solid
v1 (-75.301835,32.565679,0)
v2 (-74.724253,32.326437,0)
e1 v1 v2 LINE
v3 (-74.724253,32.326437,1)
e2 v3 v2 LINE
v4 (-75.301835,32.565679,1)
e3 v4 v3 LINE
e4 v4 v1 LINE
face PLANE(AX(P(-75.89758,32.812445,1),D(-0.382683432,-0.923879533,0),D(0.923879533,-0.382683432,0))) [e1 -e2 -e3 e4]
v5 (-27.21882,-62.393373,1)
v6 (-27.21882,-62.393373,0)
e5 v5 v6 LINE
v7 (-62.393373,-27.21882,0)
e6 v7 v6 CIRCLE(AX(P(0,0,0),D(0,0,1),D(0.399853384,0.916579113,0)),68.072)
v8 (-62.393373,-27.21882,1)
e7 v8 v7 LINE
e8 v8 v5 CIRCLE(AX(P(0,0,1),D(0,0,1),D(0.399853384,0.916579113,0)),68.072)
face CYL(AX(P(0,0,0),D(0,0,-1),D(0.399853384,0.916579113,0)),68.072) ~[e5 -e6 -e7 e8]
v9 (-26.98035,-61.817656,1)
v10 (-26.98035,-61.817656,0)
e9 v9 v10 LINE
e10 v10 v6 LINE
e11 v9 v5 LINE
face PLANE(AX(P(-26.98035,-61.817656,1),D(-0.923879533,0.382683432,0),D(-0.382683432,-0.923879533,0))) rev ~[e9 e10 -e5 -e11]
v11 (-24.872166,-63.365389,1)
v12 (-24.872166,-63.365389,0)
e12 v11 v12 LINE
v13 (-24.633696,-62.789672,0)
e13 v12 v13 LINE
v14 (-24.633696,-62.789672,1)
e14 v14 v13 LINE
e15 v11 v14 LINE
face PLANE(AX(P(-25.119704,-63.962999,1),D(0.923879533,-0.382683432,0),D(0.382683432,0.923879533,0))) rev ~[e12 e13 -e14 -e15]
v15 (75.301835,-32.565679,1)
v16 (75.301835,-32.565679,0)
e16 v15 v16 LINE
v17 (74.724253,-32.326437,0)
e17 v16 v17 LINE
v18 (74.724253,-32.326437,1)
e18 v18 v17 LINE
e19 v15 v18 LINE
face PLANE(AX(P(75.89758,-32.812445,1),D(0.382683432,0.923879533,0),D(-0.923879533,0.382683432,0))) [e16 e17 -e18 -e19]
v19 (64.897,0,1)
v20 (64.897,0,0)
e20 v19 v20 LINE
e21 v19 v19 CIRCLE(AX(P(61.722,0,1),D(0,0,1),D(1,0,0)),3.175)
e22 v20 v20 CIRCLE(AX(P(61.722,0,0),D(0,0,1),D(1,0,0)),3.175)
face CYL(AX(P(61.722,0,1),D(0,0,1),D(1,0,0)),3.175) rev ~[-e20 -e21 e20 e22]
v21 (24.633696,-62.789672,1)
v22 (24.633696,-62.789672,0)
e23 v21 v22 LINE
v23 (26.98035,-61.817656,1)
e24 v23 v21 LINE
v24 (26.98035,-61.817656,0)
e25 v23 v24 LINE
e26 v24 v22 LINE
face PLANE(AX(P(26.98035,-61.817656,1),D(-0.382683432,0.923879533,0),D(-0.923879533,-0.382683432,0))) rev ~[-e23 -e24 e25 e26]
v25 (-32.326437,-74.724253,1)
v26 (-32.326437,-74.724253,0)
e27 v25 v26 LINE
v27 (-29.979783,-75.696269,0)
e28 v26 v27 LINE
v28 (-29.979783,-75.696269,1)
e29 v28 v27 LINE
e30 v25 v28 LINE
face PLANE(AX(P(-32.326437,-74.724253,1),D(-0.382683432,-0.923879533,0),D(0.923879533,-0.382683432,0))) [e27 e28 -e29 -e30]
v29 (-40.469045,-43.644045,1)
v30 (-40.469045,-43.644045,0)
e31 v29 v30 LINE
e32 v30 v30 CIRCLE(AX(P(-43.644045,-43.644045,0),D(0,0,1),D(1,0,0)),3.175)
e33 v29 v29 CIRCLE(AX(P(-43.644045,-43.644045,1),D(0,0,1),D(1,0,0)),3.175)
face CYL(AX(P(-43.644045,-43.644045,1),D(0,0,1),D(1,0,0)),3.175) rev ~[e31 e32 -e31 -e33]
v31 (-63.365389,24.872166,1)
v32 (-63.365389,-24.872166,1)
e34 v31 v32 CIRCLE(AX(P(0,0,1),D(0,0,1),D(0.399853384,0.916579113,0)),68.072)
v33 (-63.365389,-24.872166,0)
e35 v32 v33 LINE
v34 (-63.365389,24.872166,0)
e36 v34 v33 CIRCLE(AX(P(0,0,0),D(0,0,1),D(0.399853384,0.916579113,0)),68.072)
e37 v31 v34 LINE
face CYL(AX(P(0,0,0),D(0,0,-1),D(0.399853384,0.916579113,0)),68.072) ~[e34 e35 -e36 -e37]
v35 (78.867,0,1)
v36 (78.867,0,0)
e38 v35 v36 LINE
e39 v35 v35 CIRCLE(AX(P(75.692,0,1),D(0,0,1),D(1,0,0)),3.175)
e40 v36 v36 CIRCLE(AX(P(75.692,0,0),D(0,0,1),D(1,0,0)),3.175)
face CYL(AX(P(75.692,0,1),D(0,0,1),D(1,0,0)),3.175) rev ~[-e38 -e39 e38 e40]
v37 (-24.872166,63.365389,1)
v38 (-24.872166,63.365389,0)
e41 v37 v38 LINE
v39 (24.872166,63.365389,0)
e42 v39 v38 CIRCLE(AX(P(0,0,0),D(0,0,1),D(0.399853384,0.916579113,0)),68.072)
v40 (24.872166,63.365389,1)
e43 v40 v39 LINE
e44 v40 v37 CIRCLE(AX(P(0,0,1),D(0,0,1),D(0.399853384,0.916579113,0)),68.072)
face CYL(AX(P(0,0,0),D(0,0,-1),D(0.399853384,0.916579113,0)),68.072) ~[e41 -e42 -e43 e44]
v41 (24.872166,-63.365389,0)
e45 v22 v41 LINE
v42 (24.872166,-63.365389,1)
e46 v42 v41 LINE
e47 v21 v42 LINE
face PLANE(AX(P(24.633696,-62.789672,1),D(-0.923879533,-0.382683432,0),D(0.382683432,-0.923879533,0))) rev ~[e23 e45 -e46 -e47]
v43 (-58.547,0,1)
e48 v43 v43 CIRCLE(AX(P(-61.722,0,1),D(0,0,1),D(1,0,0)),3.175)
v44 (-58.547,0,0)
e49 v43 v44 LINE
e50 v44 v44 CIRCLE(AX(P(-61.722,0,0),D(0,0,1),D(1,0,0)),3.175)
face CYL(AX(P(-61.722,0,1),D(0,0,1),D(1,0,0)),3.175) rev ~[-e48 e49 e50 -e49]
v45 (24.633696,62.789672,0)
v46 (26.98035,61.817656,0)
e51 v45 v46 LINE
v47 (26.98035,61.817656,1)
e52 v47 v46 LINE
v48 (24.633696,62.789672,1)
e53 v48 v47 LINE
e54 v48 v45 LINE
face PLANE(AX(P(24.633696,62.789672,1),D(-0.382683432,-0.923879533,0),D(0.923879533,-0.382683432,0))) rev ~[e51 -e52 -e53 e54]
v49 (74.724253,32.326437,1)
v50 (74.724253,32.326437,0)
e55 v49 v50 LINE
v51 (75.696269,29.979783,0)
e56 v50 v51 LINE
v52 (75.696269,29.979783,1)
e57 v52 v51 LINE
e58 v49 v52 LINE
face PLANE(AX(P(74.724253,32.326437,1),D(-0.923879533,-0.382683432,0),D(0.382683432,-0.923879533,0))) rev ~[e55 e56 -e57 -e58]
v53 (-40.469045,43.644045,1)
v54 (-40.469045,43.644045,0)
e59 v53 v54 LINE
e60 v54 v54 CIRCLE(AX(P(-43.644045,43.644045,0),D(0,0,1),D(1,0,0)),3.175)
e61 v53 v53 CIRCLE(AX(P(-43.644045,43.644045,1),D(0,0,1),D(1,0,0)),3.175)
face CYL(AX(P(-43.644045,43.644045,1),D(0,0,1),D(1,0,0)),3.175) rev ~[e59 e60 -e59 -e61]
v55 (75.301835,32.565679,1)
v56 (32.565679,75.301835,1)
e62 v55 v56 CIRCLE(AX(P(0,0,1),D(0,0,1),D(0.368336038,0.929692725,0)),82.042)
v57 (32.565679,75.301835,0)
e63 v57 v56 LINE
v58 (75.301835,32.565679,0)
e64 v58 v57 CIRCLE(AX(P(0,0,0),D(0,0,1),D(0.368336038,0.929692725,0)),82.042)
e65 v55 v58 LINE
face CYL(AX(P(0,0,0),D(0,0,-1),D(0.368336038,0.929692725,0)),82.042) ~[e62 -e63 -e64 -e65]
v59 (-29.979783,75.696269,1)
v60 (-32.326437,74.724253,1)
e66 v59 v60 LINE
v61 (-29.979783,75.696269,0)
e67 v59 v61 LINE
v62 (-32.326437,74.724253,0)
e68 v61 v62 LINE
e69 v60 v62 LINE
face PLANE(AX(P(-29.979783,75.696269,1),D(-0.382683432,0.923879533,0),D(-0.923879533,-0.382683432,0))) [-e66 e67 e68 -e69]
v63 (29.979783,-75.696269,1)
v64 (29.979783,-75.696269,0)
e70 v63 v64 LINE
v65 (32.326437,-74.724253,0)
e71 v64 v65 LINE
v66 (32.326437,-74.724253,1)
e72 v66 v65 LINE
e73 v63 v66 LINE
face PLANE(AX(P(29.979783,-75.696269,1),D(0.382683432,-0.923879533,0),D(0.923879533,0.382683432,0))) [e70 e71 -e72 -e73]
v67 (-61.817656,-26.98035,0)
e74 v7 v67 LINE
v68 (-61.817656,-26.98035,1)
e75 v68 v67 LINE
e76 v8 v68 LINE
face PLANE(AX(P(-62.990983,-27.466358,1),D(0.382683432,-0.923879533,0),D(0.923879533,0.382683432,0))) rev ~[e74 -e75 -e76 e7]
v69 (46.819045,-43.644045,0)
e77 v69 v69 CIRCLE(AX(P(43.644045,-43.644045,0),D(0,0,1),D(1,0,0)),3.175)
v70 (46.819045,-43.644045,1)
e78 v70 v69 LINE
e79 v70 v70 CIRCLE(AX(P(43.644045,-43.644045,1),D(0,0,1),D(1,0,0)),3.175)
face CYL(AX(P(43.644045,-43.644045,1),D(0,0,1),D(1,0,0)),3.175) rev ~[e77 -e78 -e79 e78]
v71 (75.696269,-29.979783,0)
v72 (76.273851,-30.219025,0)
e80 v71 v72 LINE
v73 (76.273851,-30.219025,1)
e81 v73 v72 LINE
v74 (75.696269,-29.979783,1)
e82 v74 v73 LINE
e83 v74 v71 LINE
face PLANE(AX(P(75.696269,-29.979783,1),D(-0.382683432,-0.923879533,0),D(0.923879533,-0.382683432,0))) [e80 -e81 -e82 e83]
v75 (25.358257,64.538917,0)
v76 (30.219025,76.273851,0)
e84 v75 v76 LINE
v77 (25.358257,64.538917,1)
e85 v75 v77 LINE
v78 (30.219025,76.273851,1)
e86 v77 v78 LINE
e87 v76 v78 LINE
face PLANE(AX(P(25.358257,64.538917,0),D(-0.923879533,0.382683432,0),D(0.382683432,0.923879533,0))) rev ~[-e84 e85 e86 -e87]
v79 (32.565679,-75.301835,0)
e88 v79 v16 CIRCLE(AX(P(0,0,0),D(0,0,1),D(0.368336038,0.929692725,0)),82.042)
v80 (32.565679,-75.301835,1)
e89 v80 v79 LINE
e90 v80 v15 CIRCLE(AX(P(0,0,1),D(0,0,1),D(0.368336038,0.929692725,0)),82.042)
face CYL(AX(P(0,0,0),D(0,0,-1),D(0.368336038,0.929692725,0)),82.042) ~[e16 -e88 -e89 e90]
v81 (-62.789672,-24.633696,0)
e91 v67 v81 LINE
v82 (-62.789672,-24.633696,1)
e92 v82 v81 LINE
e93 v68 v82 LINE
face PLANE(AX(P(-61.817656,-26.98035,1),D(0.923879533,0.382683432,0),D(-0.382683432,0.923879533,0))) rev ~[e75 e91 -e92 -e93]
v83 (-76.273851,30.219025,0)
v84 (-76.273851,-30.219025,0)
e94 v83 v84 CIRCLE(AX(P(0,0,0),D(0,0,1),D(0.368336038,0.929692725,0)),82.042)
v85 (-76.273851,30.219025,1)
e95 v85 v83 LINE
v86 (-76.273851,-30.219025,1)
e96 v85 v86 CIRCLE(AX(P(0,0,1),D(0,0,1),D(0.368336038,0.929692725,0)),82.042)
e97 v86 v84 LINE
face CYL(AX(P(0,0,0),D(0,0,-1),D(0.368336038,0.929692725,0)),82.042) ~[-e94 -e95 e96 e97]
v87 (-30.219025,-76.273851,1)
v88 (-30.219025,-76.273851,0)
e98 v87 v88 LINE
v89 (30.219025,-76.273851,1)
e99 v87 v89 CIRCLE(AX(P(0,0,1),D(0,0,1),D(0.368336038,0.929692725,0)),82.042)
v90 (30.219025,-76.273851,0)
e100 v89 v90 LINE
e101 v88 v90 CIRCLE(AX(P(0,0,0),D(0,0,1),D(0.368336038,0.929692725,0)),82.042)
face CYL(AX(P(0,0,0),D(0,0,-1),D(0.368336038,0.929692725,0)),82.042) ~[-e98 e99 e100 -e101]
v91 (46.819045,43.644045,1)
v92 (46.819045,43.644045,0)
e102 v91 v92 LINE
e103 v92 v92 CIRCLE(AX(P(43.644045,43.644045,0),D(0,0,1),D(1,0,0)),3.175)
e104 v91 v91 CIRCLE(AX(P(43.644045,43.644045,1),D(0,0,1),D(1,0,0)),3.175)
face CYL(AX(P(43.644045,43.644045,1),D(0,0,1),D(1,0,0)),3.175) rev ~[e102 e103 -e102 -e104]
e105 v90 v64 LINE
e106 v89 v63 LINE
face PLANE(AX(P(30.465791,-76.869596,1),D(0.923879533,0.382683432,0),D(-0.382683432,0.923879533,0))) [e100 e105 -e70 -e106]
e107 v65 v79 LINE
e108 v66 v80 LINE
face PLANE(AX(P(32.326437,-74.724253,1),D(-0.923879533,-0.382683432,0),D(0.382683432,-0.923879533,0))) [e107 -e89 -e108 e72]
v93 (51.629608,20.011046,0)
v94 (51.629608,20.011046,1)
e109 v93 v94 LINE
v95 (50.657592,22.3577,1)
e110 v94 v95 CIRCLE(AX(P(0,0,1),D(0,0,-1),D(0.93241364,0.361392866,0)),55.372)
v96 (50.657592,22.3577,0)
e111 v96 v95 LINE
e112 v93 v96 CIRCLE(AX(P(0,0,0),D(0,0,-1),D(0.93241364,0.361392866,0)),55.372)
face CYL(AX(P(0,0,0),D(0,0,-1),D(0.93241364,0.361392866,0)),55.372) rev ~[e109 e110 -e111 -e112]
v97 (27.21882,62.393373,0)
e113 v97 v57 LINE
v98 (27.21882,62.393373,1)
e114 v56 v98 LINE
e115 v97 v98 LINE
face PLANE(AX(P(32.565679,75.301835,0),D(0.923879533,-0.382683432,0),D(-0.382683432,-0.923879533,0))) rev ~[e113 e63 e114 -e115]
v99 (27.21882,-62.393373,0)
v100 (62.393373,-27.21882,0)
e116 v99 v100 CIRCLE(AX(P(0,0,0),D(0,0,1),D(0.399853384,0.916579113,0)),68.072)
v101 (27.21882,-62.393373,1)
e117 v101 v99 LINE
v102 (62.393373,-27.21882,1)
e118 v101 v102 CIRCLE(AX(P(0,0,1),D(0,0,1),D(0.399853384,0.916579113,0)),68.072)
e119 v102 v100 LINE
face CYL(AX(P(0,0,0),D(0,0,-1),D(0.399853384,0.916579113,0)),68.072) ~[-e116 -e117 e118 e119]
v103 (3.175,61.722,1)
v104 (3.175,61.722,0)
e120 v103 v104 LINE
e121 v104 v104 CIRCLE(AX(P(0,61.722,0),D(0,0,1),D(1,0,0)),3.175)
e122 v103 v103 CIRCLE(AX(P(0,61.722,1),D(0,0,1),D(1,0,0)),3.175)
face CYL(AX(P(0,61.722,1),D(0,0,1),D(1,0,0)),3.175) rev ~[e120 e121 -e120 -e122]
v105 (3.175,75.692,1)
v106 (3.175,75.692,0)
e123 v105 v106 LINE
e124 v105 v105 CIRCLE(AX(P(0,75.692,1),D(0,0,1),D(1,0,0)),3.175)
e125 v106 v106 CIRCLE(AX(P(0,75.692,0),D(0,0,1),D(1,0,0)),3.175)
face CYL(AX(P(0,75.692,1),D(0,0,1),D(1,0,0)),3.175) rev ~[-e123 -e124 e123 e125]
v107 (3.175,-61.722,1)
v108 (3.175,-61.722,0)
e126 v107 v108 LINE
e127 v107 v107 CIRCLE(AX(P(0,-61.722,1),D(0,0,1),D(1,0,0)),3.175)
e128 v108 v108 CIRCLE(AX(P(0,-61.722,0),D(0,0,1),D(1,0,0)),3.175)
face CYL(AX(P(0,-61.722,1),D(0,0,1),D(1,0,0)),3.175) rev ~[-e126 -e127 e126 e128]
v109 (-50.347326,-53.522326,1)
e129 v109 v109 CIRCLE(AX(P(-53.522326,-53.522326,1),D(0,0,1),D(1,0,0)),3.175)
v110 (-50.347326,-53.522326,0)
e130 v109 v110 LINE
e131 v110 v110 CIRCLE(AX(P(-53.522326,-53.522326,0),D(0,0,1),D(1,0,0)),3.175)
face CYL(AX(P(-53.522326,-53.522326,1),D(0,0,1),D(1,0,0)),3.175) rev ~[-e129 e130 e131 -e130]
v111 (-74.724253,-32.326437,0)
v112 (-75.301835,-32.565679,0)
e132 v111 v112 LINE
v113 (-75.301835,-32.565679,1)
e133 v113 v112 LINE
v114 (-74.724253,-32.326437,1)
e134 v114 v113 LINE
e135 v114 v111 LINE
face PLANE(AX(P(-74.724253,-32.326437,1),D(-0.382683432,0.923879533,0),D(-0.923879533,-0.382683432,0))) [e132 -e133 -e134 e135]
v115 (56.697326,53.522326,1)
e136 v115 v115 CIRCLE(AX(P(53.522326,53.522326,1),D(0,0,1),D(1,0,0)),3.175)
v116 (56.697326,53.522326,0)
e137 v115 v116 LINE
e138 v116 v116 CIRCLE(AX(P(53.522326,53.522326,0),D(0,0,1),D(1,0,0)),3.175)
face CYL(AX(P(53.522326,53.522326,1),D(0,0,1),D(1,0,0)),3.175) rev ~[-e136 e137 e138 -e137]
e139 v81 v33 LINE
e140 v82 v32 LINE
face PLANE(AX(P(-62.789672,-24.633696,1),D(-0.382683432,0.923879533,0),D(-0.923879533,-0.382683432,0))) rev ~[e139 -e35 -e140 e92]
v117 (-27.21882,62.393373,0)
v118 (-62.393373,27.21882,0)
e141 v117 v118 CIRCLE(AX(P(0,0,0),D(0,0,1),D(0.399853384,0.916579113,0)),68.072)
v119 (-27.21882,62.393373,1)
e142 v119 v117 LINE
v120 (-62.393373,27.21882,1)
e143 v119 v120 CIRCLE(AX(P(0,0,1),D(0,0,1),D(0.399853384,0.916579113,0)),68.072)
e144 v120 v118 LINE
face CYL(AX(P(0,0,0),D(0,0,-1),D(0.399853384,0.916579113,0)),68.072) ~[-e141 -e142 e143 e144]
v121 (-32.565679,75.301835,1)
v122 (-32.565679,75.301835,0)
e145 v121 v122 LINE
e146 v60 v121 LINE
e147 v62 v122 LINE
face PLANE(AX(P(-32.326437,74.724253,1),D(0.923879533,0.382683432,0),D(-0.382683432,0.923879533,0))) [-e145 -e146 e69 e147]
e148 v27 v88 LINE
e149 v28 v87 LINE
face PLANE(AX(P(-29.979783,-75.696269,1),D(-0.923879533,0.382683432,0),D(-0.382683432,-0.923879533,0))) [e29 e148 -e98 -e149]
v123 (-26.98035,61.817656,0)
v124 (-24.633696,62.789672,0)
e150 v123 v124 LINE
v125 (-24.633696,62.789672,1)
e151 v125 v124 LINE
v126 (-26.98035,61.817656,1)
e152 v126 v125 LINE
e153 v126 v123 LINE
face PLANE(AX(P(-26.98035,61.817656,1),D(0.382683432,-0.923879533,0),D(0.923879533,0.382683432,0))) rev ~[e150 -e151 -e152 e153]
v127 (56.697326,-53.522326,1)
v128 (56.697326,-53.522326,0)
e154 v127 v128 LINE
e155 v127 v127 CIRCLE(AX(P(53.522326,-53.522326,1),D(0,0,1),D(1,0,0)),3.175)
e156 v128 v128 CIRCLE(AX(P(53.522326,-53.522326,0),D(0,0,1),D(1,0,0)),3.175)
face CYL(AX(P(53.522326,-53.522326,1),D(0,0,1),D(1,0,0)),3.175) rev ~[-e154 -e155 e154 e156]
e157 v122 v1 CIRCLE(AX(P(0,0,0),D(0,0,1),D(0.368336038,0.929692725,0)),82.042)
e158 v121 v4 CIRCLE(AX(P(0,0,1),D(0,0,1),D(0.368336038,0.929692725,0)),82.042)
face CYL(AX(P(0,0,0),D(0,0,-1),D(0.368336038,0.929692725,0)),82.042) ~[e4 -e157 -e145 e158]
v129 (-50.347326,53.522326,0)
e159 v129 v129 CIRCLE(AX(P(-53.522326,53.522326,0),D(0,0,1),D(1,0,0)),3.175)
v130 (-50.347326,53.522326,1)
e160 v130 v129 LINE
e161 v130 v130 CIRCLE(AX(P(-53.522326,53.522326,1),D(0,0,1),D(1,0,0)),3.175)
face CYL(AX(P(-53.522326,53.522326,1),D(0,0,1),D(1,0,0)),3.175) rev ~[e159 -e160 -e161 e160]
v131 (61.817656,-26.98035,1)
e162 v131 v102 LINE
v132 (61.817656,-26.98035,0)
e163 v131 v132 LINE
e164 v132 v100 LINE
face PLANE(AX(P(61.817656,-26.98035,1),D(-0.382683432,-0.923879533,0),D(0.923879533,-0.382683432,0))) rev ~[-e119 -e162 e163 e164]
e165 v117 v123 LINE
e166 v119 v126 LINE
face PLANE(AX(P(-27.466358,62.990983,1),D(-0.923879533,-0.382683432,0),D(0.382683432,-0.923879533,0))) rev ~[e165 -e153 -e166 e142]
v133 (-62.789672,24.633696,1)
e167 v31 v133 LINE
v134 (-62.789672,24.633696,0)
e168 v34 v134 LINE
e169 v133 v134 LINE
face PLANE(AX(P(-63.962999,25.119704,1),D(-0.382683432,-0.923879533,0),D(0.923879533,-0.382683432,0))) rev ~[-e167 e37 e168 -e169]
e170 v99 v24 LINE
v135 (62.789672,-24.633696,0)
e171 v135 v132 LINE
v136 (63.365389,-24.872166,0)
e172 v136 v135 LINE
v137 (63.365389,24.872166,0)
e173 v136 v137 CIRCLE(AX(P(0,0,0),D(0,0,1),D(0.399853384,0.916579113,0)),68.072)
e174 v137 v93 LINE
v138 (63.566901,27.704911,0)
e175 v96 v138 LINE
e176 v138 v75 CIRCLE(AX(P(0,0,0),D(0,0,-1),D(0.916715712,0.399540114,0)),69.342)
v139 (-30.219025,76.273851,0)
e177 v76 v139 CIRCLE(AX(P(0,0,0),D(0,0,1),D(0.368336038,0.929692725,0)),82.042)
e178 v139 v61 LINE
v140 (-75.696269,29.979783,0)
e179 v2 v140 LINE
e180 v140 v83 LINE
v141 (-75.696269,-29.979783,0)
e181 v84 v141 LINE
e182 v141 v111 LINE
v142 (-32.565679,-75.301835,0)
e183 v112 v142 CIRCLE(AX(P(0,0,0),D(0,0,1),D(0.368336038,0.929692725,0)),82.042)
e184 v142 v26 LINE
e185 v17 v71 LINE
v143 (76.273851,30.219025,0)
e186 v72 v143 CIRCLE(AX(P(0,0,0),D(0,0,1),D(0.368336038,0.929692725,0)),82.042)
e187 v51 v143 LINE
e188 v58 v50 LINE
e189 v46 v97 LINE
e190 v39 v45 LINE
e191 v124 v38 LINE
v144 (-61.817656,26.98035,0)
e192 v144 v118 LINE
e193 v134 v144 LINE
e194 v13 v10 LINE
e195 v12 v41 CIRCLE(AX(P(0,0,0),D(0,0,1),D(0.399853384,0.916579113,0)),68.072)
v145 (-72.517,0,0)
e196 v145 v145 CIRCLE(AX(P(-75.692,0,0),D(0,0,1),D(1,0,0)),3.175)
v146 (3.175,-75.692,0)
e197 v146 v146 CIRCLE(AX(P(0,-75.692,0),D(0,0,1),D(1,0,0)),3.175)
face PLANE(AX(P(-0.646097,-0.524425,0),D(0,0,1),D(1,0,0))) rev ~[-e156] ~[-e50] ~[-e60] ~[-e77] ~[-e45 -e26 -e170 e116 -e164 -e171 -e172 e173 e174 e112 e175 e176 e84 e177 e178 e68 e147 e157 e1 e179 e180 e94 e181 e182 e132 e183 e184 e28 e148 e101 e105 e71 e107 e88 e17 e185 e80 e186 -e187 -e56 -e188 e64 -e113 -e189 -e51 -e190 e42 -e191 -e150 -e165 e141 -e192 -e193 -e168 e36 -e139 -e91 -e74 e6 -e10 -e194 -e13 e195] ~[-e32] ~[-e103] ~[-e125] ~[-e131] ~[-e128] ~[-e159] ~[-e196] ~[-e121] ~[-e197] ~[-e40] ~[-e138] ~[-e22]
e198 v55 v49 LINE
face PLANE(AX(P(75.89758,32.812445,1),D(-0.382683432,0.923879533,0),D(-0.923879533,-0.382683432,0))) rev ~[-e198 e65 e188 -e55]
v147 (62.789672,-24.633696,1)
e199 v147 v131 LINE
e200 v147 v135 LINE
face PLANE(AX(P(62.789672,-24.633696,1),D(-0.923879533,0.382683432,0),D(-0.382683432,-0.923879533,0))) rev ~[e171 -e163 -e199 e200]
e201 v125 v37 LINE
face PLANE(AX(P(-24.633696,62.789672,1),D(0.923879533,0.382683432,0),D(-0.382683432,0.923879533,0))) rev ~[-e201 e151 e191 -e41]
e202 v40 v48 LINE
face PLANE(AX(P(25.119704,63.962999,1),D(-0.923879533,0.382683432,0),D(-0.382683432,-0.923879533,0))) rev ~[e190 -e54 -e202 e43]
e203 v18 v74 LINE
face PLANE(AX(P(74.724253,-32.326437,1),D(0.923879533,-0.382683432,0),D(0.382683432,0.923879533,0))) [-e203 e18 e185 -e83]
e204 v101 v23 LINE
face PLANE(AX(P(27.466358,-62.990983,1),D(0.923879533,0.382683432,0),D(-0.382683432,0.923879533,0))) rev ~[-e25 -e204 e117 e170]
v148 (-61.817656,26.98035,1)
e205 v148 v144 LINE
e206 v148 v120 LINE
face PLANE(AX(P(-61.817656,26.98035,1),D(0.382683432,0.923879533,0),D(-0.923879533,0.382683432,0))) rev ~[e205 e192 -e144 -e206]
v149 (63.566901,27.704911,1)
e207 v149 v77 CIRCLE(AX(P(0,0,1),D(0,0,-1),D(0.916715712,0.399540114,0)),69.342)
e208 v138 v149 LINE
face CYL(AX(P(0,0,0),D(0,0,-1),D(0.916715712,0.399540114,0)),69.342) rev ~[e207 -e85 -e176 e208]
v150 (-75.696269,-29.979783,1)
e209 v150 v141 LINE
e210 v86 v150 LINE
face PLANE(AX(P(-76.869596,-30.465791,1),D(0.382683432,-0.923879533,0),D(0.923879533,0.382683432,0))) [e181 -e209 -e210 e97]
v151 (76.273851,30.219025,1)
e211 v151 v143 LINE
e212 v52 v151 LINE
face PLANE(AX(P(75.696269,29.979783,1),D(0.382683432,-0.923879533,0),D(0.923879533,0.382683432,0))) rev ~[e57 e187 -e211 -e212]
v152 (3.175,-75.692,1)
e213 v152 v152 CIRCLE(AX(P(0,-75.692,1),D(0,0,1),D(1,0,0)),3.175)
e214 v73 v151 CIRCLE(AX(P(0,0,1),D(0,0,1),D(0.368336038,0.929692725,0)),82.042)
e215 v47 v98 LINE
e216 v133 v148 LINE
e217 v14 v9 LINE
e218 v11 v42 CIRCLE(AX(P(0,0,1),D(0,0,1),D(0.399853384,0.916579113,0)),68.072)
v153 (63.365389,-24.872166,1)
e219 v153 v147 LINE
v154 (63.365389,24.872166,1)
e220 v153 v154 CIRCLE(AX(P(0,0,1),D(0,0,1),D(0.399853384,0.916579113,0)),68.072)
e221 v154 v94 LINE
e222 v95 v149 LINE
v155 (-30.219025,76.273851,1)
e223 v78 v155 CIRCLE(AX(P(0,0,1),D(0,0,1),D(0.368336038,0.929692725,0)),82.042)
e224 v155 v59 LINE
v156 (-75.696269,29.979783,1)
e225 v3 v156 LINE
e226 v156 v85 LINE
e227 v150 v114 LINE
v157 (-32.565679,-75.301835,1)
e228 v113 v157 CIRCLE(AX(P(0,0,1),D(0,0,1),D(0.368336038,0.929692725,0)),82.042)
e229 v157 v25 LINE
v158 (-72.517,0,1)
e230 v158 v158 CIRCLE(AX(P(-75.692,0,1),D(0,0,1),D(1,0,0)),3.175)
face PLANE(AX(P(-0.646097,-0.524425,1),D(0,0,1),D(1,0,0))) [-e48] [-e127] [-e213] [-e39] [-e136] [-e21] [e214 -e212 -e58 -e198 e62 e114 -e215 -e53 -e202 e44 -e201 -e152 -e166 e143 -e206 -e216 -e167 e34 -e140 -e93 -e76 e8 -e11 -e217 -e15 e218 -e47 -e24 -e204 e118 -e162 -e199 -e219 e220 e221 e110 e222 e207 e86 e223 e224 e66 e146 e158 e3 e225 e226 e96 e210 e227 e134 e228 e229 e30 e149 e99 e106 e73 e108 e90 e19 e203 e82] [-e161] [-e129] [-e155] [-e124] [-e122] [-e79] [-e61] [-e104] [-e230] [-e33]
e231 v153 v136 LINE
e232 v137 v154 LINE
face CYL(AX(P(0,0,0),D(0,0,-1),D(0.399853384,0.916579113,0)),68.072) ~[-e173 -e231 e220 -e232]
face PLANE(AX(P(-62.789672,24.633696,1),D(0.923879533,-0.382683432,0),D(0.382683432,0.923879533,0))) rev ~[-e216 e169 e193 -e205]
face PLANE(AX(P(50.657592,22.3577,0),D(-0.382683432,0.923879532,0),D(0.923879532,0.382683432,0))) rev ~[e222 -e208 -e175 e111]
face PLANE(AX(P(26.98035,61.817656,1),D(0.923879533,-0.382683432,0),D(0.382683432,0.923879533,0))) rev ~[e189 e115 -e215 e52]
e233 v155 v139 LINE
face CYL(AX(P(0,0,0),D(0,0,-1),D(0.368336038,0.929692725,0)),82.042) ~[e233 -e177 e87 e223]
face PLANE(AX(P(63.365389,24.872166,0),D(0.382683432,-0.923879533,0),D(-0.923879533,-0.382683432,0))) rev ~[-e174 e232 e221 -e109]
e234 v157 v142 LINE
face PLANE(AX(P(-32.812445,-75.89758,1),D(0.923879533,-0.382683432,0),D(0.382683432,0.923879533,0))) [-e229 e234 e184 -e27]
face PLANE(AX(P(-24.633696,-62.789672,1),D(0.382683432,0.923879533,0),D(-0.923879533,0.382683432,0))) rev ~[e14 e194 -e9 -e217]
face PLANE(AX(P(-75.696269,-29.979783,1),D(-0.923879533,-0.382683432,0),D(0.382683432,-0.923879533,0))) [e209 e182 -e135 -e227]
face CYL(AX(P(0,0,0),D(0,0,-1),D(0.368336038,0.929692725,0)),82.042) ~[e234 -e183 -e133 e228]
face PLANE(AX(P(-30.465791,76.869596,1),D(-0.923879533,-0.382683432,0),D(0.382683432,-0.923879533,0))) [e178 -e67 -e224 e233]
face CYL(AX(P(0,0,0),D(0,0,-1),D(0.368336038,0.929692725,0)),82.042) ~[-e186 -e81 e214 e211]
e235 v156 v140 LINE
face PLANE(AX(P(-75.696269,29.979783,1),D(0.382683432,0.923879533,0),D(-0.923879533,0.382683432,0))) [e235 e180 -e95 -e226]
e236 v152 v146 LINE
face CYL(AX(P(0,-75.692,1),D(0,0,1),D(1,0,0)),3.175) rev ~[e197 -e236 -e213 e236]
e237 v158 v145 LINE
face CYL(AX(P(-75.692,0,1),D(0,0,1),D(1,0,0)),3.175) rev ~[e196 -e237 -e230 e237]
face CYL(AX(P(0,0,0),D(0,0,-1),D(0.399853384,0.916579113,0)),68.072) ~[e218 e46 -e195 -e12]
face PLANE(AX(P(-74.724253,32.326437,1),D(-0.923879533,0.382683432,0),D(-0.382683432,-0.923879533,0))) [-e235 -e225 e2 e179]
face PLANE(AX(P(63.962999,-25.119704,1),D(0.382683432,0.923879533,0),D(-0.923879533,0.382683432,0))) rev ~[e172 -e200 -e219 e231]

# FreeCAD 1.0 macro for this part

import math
import FreeCAD as App
import Part
import Sketcher
Q = App.Units.Quantity

doc = App.newDocument("Part")
body = doc.addObject("PartDesign::Body", "Body")

# Sketch on XY plane
sketch1 = body.newObject("Sketcher::SketchObject", "Sketch")
sketch1.AttachmentSupport = (doc.getObject("XY_Plane"), [""])
sketch1.MapMode = "FlatFace"
sketch1.addGeometry(Part.LineSegment(App.Vector(25.358257, 64.538917, 0), App.Vector(30.219025, 76.273851, 0)), False)
sketch1.addGeometry(Part.ArcOfCircle(Part.Circle(App.Vector(0, 0, 0), App.Vector(0, 0, 1), 82.042), math.radians(68.386967), math.radians(426.613033)), False)
sketch1.addGeometry(Part.LineSegment(App.Vector(32.565679, 75.301835, 0), App.Vector(27.21882, 62.393373, 0)), False)
sketch1.addGeometry(Part.ArcOfCircle(Part.Circle(App.Vector(0, 0, 0), App.Vector(0, 0, 1), 68.072), math.radians(66.430987), math.radians(381.430987)), False)
sketch1.addGeometry(Part.LineSegment(App.Vector(63.365389, 24.872166, 0), App.Vector(51.629608, 20.011046, 0)), False)
sketch1.addGeometry(Part.ArcOfCircle(Part.Circle(App.Vector(0, 0, 0), App.Vector(0, 0, 1), 55.372), math.radians(23.814239), math.radians(381.185761)), False)
sketch1.addGeometry(Part.LineSegment(App.Vector(50.657592, 22.3577, 0), App.Vector(63.566901, 27.704911, 0)), False)
sketch1.addGeometry(Part.ArcOfCircle(Part.Circle(App.Vector(0, 0, 0), App.Vector(0, 0, 1), 69.342), math.radians(68.549432), math.radians(383.549432)), False)
sketch1.addConstraint(Sketcher.Constraint("Coincident", 0, 2, 1, 1))
sketch1.addConstraint(Sketcher.Constraint("Coincident", 1, 2, 2, 1))
sketch1.addConstraint(Sketcher.Constraint("Coincident", 2, 2, 3, 1))
sketch1.addConstraint(Sketcher.Constraint("Coincident", 3, 2, 4, 1))
sketch1.addConstraint(Sketcher.Constraint("Coincident", 4, 2, 5, 2))
sketch1.addConstraint(Sketcher.Constraint("Coincident", 5, 1, 6, 1))
sketch1.addConstraint(Sketcher.Constraint("Coincident", 6, 2, 7, 2))
sketch1.addConstraint(Sketcher.Constraint("Coincident", 7, 1, 0, 1))
sketch1.addConstraint(Sketcher.Constraint("Coincident", 1, 3, -1, 1))
sketch1.addConstraint(Sketcher.Constraint("Coincident", 3, 3, -1, 1))
sketch1.addConstraint(Sketcher.Constraint("Coincident", 5, 3, -1, 1))
sketch1.addConstraint(Sketcher.Constraint("Coincident", 7, 3, -1, 1))
sketch1.addConstraint(Sketcher.Constraint("Radius", 1, Q("3.23 in")))
sketch1.addConstraint(Sketcher.Constraint("Radius", 3, Q("2.68 in")))
sketch1.addConstraint(Sketcher.Constraint("Radius", 5, Q("2.18 in")))
sketch1.addConstraint(Sketcher.Constraint("Radius", 7, Q("2.73 in")))
sketch1.addConstraint(Sketcher.Constraint("Distance", 0, Q("12.701801 mm")))
sketch1.addConstraint(Sketcher.Constraint("DistanceY", -1, 1, 5, 1, Q("22.3577 mm")))
sketch1.addConstraint(Sketcher.Constraint("DistanceX", -1, 1, 6, 2, Q("63.566901 mm")))
sketch1.addConstraint(Sketcher.Constraint("Distance", 4, Q("12.702718 mm")))
sketch1.addConstraint(Sketcher.Constraint("DistanceY", -1, 1, 0, 2, Q("76.273851 mm")))
sketch1.addConstraint(Sketcher.Constraint("DistanceX", -1, 1, 1, 2, Q("32.565679 mm")))
sketch1.addConstraint(Sketcher.Constraint("DistanceX", -1, 1, 2, 2, Q("27.21882 mm")))
sketch1.addConstraint(Sketcher.Constraint("DistanceX", -1, 1, 3, 2, Q("63.365389 mm")))
pad1 = body.newObject("PartDesign::Pad", "Pad")
pad1.Profile = sketch1
pad1.Length = 1

# Sketch on XY plane
sketch2 = body.newObject("Sketcher::SketchObject", "Sketch001")
sketch2.AttachmentSupport = (doc.getObject("XY_Plane"), [""])
sketch2.MapMode = "FlatFace"
sketch2.AttachmentOffset = App.Placement(App.Vector(0, 0, 1), App.Rotation())
sketch2.addGeometry(Part.Circle(App.Vector(61.7, 0, 0), App.Vector(0, 0, 1), 3.2), False)
sketch2.addGeometry(Part.Circle(App.Vector(75.7, 0, 0), App.Vector(0, 0, 1), 3.2), False)
sketch2.addGeometry(Part.Circle(App.Vector(53.5, -53.5, 0), App.Vector(0, 0, 1), 3.2), False)
sketch2.addGeometry(Part.Circle(App.Vector(43.6, -43.6, 0), App.Vector(0, 0, 1), 3.2), False)
sketch2.addGeometry(Part.Circle(App.Vector(0, -75.7, 0), App.Vector(0, 0, 1), 3.2), False)
sketch2.addGeometry(Part.Circle(App.Vector(0, -61.7, 0), App.Vector(0, 0, 1), 3.2), False)
sketch2.addGeometry(Part.Circle(App.Vector(-53.5, -53.5, 0), App.Vector(0, 0, 1), 3.2), False)
sketch2.addGeometry(Part.Circle(App.Vector(-43.6, -43.6, 0), App.Vector(0, 0, 1), 3.2), False)
sketch2.addGeometry(Part.Circle(App.Vector(-75.7, 0, 0), App.Vector(0, 0, 1), 3.2), False)
sketch2.addGeometry(Part.Circle(App.Vector(-61.7, 0, 0), App.Vector(0, 0, 1), 3.2), False)
sketch2.addGeometry(Part.Circle(App.Vector(-53.5, 53.5, 0), App.Vector(0, 0, 1), 3.2), False)
sketch2.addGeometry(Part.Circle(App.Vector(-43.6, 43.6, 0), App.Vector(0, 0, 1), 3.2), False)
sketch2.addGeometry(Part.Circle(App.Vector(0, 75.7, 0), App.Vector(0, 0, 1), 3.2), False)
sketch2.addGeometry(Part.Circle(App.Vector(0, 61.7, 0), App.Vector(0, 0, 1), 3.2), False)
sketch2.addGeometry(Part.Circle(App.Vector(53.5, 53.5, 0), App.Vector(0, 0, 1), 3.2), False)
sketch2.addGeometry(Part.Circle(App.Vector(43.6, 43.6, 0), App.Vector(0, 0, 1), 3.2), False)
sketch2.addConstraint(Sketcher.Constraint("Equal", 0, 1))
sketch2.addConstraint(Sketcher.Constraint("Equal", 1, 2))
sketch2.addConstraint(Sketcher.Constraint("Equal", 2, 3))
sketch2.addConstraint(Sketcher.Constraint("Equal", 3, 4))
sketch2.addConstraint(Sketcher.Constraint("Equal", 4, 5))
sketch2.addConstraint(Sketcher.Constraint("Equal", 5, 6))
sketch2.addConstraint(Sketcher.Constraint("Equal", 6, 7))
sketch2.addConstraint(Sketcher.Constraint("Equal", 7, 8))
sketch2.addConstraint(Sketcher.Constraint("Equal", 8, 9))
sketch2.addConstraint(Sketcher.Constraint("Equal", 9, 10))
sketch2.addConstraint(Sketcher.Constraint("Equal", 10, 11))
sketch2.addConstraint(Sketcher.Constraint("Equal", 11, 12))
sketch2.addConstraint(Sketcher.Constraint("Equal", 12, 13))
sketch2.addConstraint(Sketcher.Constraint("Equal", 13, 14))
sketch2.addConstraint(Sketcher.Constraint("Equal", 14, 15))
sketch2.addConstraint(Sketcher.Constraint("Symmetric", 1, 3, 8, 3, -1, 1))
sketch2.addConstraint(Sketcher.Constraint("Symmetric", 0, 3, 9, 3, -1, 1))
sketch2.addConstraint(Sketcher.Constraint("Symmetric", 2, 3, 10, 3, -1, 1))
sketch2.addConstraint(Sketcher.Constraint("Symmetric", 3, 3, 11, 3, -1, 1))
sketch2.addConstraint(Sketcher.Constraint("Symmetric", 4, 3, 12, 3, -1, 1))
sketch2.addConstraint(Sketcher.Constraint("Symmetric", 5, 3, 13, 3, -1, 1))
sketch2.addConstraint(Sketcher.Constraint("Symmetric", 6, 3, 14, 3, -1, 1))
sketch2.addConstraint(Sketcher.Constraint("Symmetric", 7, 3, 15, 3, -1, 1))
sketch2.addConstraint(Sketcher.Constraint("Symmetric", 2, 3, 6, 3, -2))
sketch2.addConstraint(Sketcher.Constraint("Symmetric", 3, 3, 7, 3, -2))
sketch2.addConstraint(Sketcher.Constraint("PointOnObject", 0, 3, -1))
sketch2.addConstraint(Sketcher.Constraint("PointOnObject", 1, 3, -1))
sketch2.addConstraint(Sketcher.Constraint("PointOnObject", 4, 3, -2))
sketch2.addConstraint(Sketcher.Constraint("PointOnObject", 5, 3, -2))
sketch2.addConstraint(Sketcher.Constraint("Diameter", 0, Q("0.25 in")))
sketch2.addConstraint(Sketcher.Constraint("DistanceX", -1, 1, 0, 3, Q("2.43 in")))
sketch2.addConstraint(Sketcher.Constraint("DistanceX", -1, 1, 1, 3, Q("2.98 in")))
sketch2.addConstraint(Sketcher.Constraint("DistanceY", 4, 3, -1, 1, Q("2.98 in")))
sketch2.addConstraint(Sketcher.Constraint("DistanceY", 5, 3, -1, 1, Q("2.43 in")))
sketch2.addConstraint(Sketcher.Constraint("DistanceX", 3, 3, 2, 3, Q("9.878282 mm")))
sketch2.addConstraint(Sketcher.Constraint("DistanceY", 2, 3, 3, 3, Q("9.878282 mm")))
sketch2.addConstraint(Sketcher.Constraint("DistanceX", 6, 3, 3, 3, Q("97.166371 mm")))
sketch2.addConstraint(Sketcher.Constraint("DistanceY", 7, 3, 10, 3, Q("97.166371 mm")))
pocket1 = body.newObject("PartDesign::Pocket", "Pocket")
pocket1.Profile = sketch2
pocket1.Type = "ThroughAll"

# Sketch on XY plane
sketch3 = body.newObject("Sketcher::SketchObject", "Sketch002")
sketch3.AttachmentSupport = (doc.getObject("XY_Plane"), [""])
sketch3.MapMode = "FlatFace"
sketch3.AttachmentOffset = App.Placement(App.Vector(0, 0, 1), App.Rotation())
sketch3.addGeometry(Part.LineSegment(App.Vector(61.8, -27, 0), App.Vector(63, -27.5, 0)), False)
sketch3.addGeometry(Part.LineSegment(App.Vector(63, -27.5, 0), App.Vector(64, -25.1, 0)), False)
sketch3.addGeometry(Part.LineSegment(App.Vector(64, -25.1, 0), App.Vector(62.8, -24.6, 0)), False)
sketch3.addGeometry(Part.LineSegment(App.Vector(62.8, -24.6, 0), App.Vector(61.8, -27, 0)), False)
sketch3.addGeometry(Part.LineSegment(App.Vector(25.1, -64, 0), App.Vector(27.5, -63, 0)), False)
sketch3.addGeometry(Part.LineSegment(App.Vector(27.5, -63, 0), App.Vector(27, -61.8, 0)), False)
sketch3.addGeometry(Part.LineSegment(App.Vector(27, -61.8, 0), App.Vector(24.6, -62.8, 0)), False)
sketch3.addGeometry(Part.LineSegment(App.Vector(24.6, -62.8, 0), App.Vector(25.1, -64, 0)), False)
sketch3.addGeometry(Part.LineSegment(App.Vector(-27.5, -63, 0), App.Vector(-25.1, -64, 0)), False)
sketch3.addGeometry(Part.LineSegment(App.Vector(-25.1, -64, 0), App.Vector(-24.6, -62.8, 0)), False)
sketch3.addGeometry(Part.LineSegment(App.Vector(-24.6, -62.8, 0), App.Vector(-27, -61.8, 0)), False)
sketch3.addGeometry(Part.LineSegment(App.Vector(-27, -61.8, 0), App.Vector(-27.5, -63, 0)), False)
sketch3.addGeometry(Part.LineSegment(App.Vector(-64, -25.1, 0), App.Vector(-63, -27.5, 0)), False)
sketch3.addGeometry(Part.LineSegment(App.Vector(-63, -27.5, 0), App.Vector(-61.8, -27, 0)), False)
sketch3.addGeometry(Part.LineSegment(App.Vector(-61.8, -27, 0), App.Vector(-62.8, -24.6, 0)), False)
sketch3.addGeometry(Part.LineSegment(App.Vector(-62.8, -24.6, 0), App.Vector(-64, -25.1, 0)), False)
sketch3.addGeometry(Part.LineSegment(App.Vector(-63, 27.5, 0), App.Vector(-64, 25.1, 0)), False)
sketch3.addGeometry(Part.LineSegment(App.Vector(-64, 25.1, 0), App.Vector(-62.8, 24.6, 0)), False)
sketch3.addGeometry(Part.LineSegment(App.Vector(-62.8, 24.6, 0), App.Vector(-61.8, 27, 0)), False)
sketch3.addGeometry(Part.LineSegment(App.Vector(-61.8, 27, 0), App.Vector(-63, 27.5, 0)), False)
sketch3.addGeometry(Part.LineSegment(App.Vector(-25.1, 64, 0), App.Vector(-27.5, 63, 0)), False)
sketch3.addGeometry(Part.LineSegment(App.Vector(-27.5, 63, 0), App.Vector(-27, 61.8, 0)), False)
sketch3.addGeometry(Part.LineSegment(App.Vector(-27, 61.8, 0), App.Vector(-24.6, 62.8, 0)), False)
sketch3.addGeometry(Part.LineSegment(App.Vector(-24.6, 62.8, 0), App.Vector(-25.1, 64, 0)), False)
sketch3.addGeometry(Part.LineSegment(App.Vector(27.5, 63, 0), App.Vector(25.1, 64, 0)), False)
sketch3.addGeometry(Part.LineSegment(App.Vector(25.1, 64, 0), App.Vector(24.6, 62.8, 0)), False)
sketch3.addGeometry(Part.LineSegment(App.Vector(24.6, 62.8, 0), App.Vector(27, 61.8, 0)), False)
sketch3.addGeometry(Part.LineSegment(App.Vector(27, 61.8, 0), App.Vector(27.5, 63, 0)), False)
sketch3.addGeometry(Part.LineSegment(App.Vector(75.7, 30, 0), App.Vector(76.9, 30.5, 0)), False)
sketch3.addGeometry(Part.LineSegment(App.Vector(76.9, 30.5, 0), App.Vector(75.9, 32.8, 0)), False)
sketch3.addGeometry(Part.LineSegment(App.Vector(75.9, 32.8, 0), App.Vector(74.7, 32.3, 0)), False)
sketch3.addGeometry(Part.LineSegment(App.Vector(74.7, 32.3, 0), App.Vector(75.7, 30, 0)), False)
sketch3.addGeometry(Part.LineSegment(App.Vector(76.9, -30.5, 0), App.Vector(75.7, -30, 0)), False)
sketch3.addGeometry(Part.LineSegment(App.Vector(75.7, -30, 0), App.Vector(74.7, -32.3, 0)), False)
sketch3.addGeometry(Part.LineSegment(App.Vector(74.7, -32.3, 0), App.Vector(75.9, -32.8, 0)), False)
sketch3.addGeometry(Part.LineSegment(App.Vector(75.9, -32.8, 0), App.Vector(76.9, -30.5, 0)), False)
sketch3.addGeometry(Part.LineSegment(App.Vector(32.8, -75.9, 0), App.Vector(32.3, -74.7, 0)), False)
sketch3.addGeometry(Part.LineSegment(App.Vector(32.3, -74.7, 0), App.Vector(30, -75.7, 0)), False)
sketch3.addGeometry(Part.LineSegment(App.Vector(30, -75.7, 0), App.Vector(30.5, -76.9, 0)), False)
sketch3.addGeometry(Part.LineSegment(App.Vector(30.5, -76.9, 0), App.Vector(32.8, -75.9, 0)), False)
sketch3.addGeometry(Part.LineSegment(App.Vector(-30.5, -76.9, 0), App.Vector(-30, -75.7, 0)), False)
sketch3.addGeometry(Part.LineSegment(App.Vector(-30, -75.7, 0), App.Vector(-32.3, -74.7, 0)), False)
sketch3.addGeometry(Part.LineSegment(App.Vector(-32.3, -74.7, 0), App.Vector(-32.8, -75.9, 0)), False)
sketch3.addGeometry(Part.LineSegment(App.Vector(-32.8, -75.9, 0), App.Vector(-30.5, -76.9, 0)), False)
sketch3.addGeometry(Part.LineSegment(App.Vector(-75.9, -32.8, 0), App.Vector(-74.7, -32.3, 0)), False)
sketch3.addGeometry(Part.LineSegment(App.Vector(-74.7, -32.3, 0), App.Vector(-75.7, -30, 0)), False)
sketch3.addGeometry(Part.LineSegment(App.Vector(-75.7, -30, 0), App.Vector(-76.9, -30.5, 0)), False)
sketch3.addGeometry(Part.LineSegment(App.Vector(-76.9, -30.5, 0), App.Vector(-75.9, -32.8, 0)), False)
sketch3.addGeometry(Part.LineSegment(App.Vector(-76.9, 30.5, 0), App.Vector(-75.7, 30, 0)), False)
sketch3.addGeometry(Part.LineSegment(App.Vector(-75.7, 30, 0), App.Vector(-74.7, 32.3, 0)), False)
sketch3.addGeometry(Part.LineSegment(App.Vector(-74.7, 32.3, 0), App.Vector(-75.9, 32.8, 0)), False)
sketch3.addGeometry(Part.LineSegment(App.Vector(-75.9, 32.8, 0), App.Vector(-76.9, 30.5, 0)), False)
sketch3.addGeometry(Part.LineSegment(App.Vector(-32.8, 75.9, 0), App.Vector(-32.3, 74.7, 0)), False)
sketch3.addGeometry(Part.LineSegment(App.Vector(-32.3, 74.7, 0), App.Vector(-30, 75.7, 0)), False)
sketch3.addGeometry(Part.LineSegment(App.Vector(-30, 75.7, 0), App.Vector(-30.5, 76.9, 0)), False)
sketch3.addGeometry(Part.LineSegment(App.Vector(-30.5, 76.9, 0), App.Vector(-32.8, 75.9, 0)), False)
sketch3.addConstraint(Sketcher.Constraint("Coincident", 0, 2, 1, 1))
sketch3.addConstraint(Sketcher.Constraint("Coincident", 1, 2, 2, 1))
sketch3.addConstraint(Sketcher.Constraint("Coincident", 2, 2, 3, 1))
sketch3.addConstraint(Sketcher.Constraint("Coincident", 3, 2, 0, 1))
sketch3.addConstraint(Sketcher.Constraint("Coincident", 4, 2, 5, 1))
sketch3.addConstraint(Sketcher.Constraint("Coincident", 5, 2, 6, 1))
sketch3.addConstraint(Sketcher.Constraint("Coincident", 6, 2, 7, 1))
sketch3.addConstraint(Sketcher.Constraint("Coincident", 7, 2, 4, 1))
sketch3.addConstraint(Sketcher.Constraint("Coincident", 8, 2, 9, 1))
sketch3.addConstraint(Sketcher.Constraint("Coincident", 9, 2, 10, 1))
sketch3.addConstraint(Sketcher.Constraint("Coincident", 10, 2, 11, 1))
sketch3.addConstraint(Sketcher.Constraint("Coincident", 11, 2, 8, 1))
sketch3.addConstraint(Sketcher.Constraint("Coincident", 12, 2, 13, 1))
sketch3.addConstraint(Sketcher.Constraint("Coincident", 13, 2, 14, 1))
sketch3.addConstraint(Sketcher.Constraint("Coincident", 14, 2, 15, 1))
sketch3.addConstraint(Sketcher.Constraint("Coincident", 15, 2, 12, 1))
sketch3.addConstraint(Sketcher.Constraint("Coincident", 16, 2, 17, 1))
sketch3.addConstraint(Sketcher.Constraint("Coincident", 17, 2, 18, 1))
sketch3.addConstraint(Sketcher.Constraint("Coincident", 18, 2, 19, 1))
sketch3.addConstraint(Sketcher.Constraint("Coincident", 19, 2, 16, 1))
sketch3.addConstraint(Sketcher.Constraint("Coincident", 20, 2, 21, 1))
sketch3.addConstraint(Sketcher.Constraint("Coincident", 21, 2, 22, 1))
sketch3.addConstraint(Sketcher.Constraint("Coincident", 22, 2, 23, 1))
sketch3.addConstraint(Sketcher.Constraint("Coincident", 23, 2, 20, 1))
sketch3.addConstraint(Sketcher.Constraint("Coincident", 24, 2, 25, 1))
sketch3.addConstraint(Sketcher.Constraint("Coincident", 25, 2, 26, 1))
sketch3.addConstraint(Sketcher.Constraint("Coincident", 26, 2, 27, 1))
sketch3.addConstraint(Sketcher.Constraint("Coincident", 27, 2, 24, 1))
sketch3.addConstraint(Sketcher.Constraint("Coincident", 28, 2, 29, 1))
sketch3.addConstraint(Sketcher.Constraint("Coincident", 29, 2, 30, 1))
sketch3.addConstraint(Sketcher.Constraint("Coincident", 30, 2, 31, 1))
sketch3.addConstraint(Sketcher.Constraint("Coincident", 31, 2, 28, 1))
sketch3.addConstraint(Sketcher.Constraint("Coincident", 32, 2, 33, 1))
sketch3.addConstraint(Sketcher.Constraint("Coincident", 33, 2, 34, 1))
sketch3.addConstraint(Sketcher.Constraint("Coincident", 34, 2, 35, 1))
sketch3.addConstraint(Sketcher.Constraint("Coincident", 35, 2, 32, 1))
sketch3.addConstraint(Sketcher.Constraint("Coincident", 36, 2, 37, 1))
sketch3.addConstraint(Sketcher.Constraint("Coincident", 37, 2, 38, 1))
sketch3.addConstraint(Sketcher.Constraint("Coincident", 38, 2, 39, 1))
sketch3.addConstraint(Sketcher.Constraint("Coincident", 39, 2, 36, 1))
sketch3.addConstraint(Sketcher.Constraint("Coincident", 40, 2, 41, 1))
sketch3.addConstraint(Sketcher.Constraint("Coincident", 41, 2, 42, 1))
sketch3.addConstraint(Sketcher.Constraint("Coincident", 42, 2, 43, 1))
sketch3.addConstraint(Sketcher.Constraint("Coincident", 43, 2, 40, 1))
sketch3.addConstraint(Sketcher.Constraint("Coincident", 44, 2, 45, 1))
sketch3.addConstraint(Sketcher.Constraint("Coincident", 45, 2, 46, 1))
sketch3.addConstraint(Sketcher.Constraint("Coincident", 46, 2, 47, 1))
sketch3.addConstraint(Sketcher.Constraint("Coincident", 47, 2, 44, 1))
sketch3.addConstraint(Sketcher.Constraint("Coincident", 48, 2, 49, 1))
sketch3.addConstraint(Sketcher.Constraint("Coincident", 49, 2, 50, 1))
sketch3.addConstraint(Sketcher.Constraint("Coincident", 50, 2, 51, 1))
sketch3.addConstraint(Sketcher.Constraint("Coincident", 51, 2, 48, 1))
sketch3.addConstraint(Sketcher.Constraint("Coincident", 52, 2, 53, 1))
sketch3.addConstraint(Sketcher.Constraint("Coincident", 53, 2, 54, 1))
sketch3.addConstraint(Sketcher.Constraint("Coincident", 54, 2, 55, 1))
sketch3.addConstraint(Sketcher.Constraint("Coincident", 55, 2, 52, 1))
sketch3.addConstraint(Sketcher.Constraint("Symmetric", 1, 2, 16, 2, -1, 1))
sketch3.addConstraint(Sketcher.Constraint("Symmetric", 2, 2, 17, 2, -1, 1))
sketch3.addConstraint(Sketcher.Constraint("Symmetric", 3, 2, 18, 2, -1, 1))
sketch3.addConstraint(Sketcher.Constraint("Symmetric", 0, 2, 19, 2, -1, 1))
sketch3.addConstraint(Sketcher.Constraint("Symmetric", 4, 2, 20, 2, -1, 1))
sketch3.addConstraint(Sketcher.Constraint("Symmetric", 5, 2, 21, 2, -1, 1))
sketch3.addConstraint(Sketcher.Constraint("Symmetric", 6, 2, 22, 2, -1, 1))
sketch3.addConstraint(Sketcher.Constraint("Symmetric", 7, 2, 23, 2, -1, 1))
sketch3.addConstraint(Sketcher.Constraint("Symmetric", 8, 2, 24, 2, -1, 1))
sketch3.addConstraint(Sketcher.Constraint("Symmetric", 9, 2, 25, 2, -1, 1))
sketch3.addConstraint(Sketcher.Constraint("Symmetric", 10, 2, 26, 2, -1, 1))
sketch3.addConstraint(Sketcher.Constraint("Symmetric", 11, 2, 27, 2, -1, 1))
sketch3.addConstraint(Sketcher.Constraint("Symmetric", 30, 2, 44, 2, -1, 1))
sketch3.addConstraint(Sketcher.Constraint("Symmetric", 31, 2, 45, 2, -1, 1))
sketch3.addConstraint(Sketcher.Constraint("Symmetric", 28, 2, 46, 2, -1, 1))
sketch3.addConstraint(Sketcher.Constraint("Symmetric", 29, 2, 47, 2, -1, 1))
sketch3.addConstraint(Sketcher.Constraint("Symmetric", 32, 2, 48, 2, -1, 1))
sketch3.addConstraint(Sketcher.Constraint("Symmetric", 33, 2, 49, 2, -1, 1))
sketch3.addConstraint(Sketcher.Constraint("Symmetric", 34, 2, 50, 2, -1, 1))
sketch3.addConstraint(Sketcher.Constraint("Symmetric", 35, 2, 51, 2, -1, 1))
sketch3.addConstraint(Sketcher.Constraint("Symmetric", 36, 2, 52, 2, -1, 1))
sketch3.addConstraint(Sketcher.Constraint("Symmetric", 37, 2, 53, 2, -1, 1))
sketch3.addConstraint(Sketcher.Constraint("Symmetric", 38, 2, 54, 2, -1, 1))
sketch3.addConstraint(Sketcher.Constraint("Symmetric", 39, 2, 55, 2, -1, 1))
sketch3.addConstraint(Sketcher.Constraint("Symmetric", 7, 2, 8, 2, -2))
sketch3.addConstraint(Sketcher.Constraint("Symmetric", 6, 2, 9, 2, -2))
sketch3.addConstraint(Sketcher.Constraint("Symmetric", 5, 2, 10, 2, -2))
sketch3.addConstraint(Sketcher.Constraint("Symmetric", 4, 2, 11, 2, -2))
sketch3.addConstraint(Sketcher.Constraint("Symmetric", 0, 2, 12, 2, -2))
sketch3.addConstraint(Sketcher.Constraint("Symmetric", 3, 2, 13, 2, -2))
sketch3.addConstraint(Sketcher.Constraint("Symmetric", 2, 2, 14, 2, -2))
sketch3.addConstraint(Sketcher.Constraint("Symmetric", 1, 2, 15, 2, -2))
sketch3.addConstraint(Sketcher.Constraint("Symmetric", 37, 2, 40, 2, -2))
sketch3.addConstraint(Sketcher.Constraint("Symmetric", 36, 2, 41, 2, -2))
sketch3.addConstraint(Sketcher.Constraint("Symmetric", 39, 2, 42, 2, -2))
sketch3.addConstraint(Sketcher.Constraint("Symmetric", 38, 2, 43, 2, -2))
sketch3.addConstraint(Sketcher.Constraint("Symmetric", 33, 2, 44, 2, -2))
sketch3.addConstraint(Sketcher.Constraint("Symmetric", 32, 2, 45, 2, -2))
sketch3.addConstraint(Sketcher.Constraint("Symmetric", 35, 2, 46, 2, -2))
sketch3.addConstraint(Sketcher.Constraint("Symmetric", 34, 2, 47, 2, -2))
sketch3.addConstraint(Sketcher.Constraint("Perpendicular", 0, 1))
sketch3.addConstraint(Sketcher.Constraint("Perpendicular", 1, 2))
sketch3.addConstraint(Sketcher.Constraint("Perpendicular", 2, 3))
sketch3.addConstraint(Sketcher.Constraint("Perpendicular", 4, 5))
sketch3.addConstraint(Sketcher.Constraint("Perpendicular", 5, 6))
sketch3.addConstraint(Sketcher.Constraint("Perpendicular", 6, 7))
sketch3.addConstraint(Sketcher.Constraint("Perpendicular", 3, 8))
sketch3.addConstraint(Sketcher.Constraint("Perpendicular", 23, 28))
sketch3.addConstraint(Sketcher.Constraint("Perpendicular", 28, 29))
sketch3.addConstraint(Sketcher.Constraint("Perpendicular", 29, 30))
sketch3.addConstraint(Sketcher.Constraint("Perpendicular", 30, 31))
sketch3.addConstraint(Sketcher.Constraint("Parallel", 31, 36))
sketch3.addConstraint(Sketcher.Constraint("Perpendicular", 36, 37))
sketch3.addConstraint(Sketcher.Constraint("Perpendicular", 37, 38))
sketch3.addConstraint(Sketcher.Constraint("Perpendicular", 38, 39))
sketch3.addConstraint(Sketcher.Constraint("Equal", 3, 4))
sketch3.addConstraint(Sketcher.Constraint("Equal", 2, 5))
sketch3.addConstraint(Sketcher.Constraint("Equal", 27, 28))
sketch3.addConstraint(Sketcher.Constraint("Equal", 26, 29))
sketch3.addConstraint(Sketcher.Constraint("Equal", 34, 36))
sketch3.addConstraint(Sketcher.Constraint("Equal", 35, 37))
sketch3.addConstraint(Sketcher.Constraint("Distance", 1, Q("0.1 in")))
sketch3.addConstraint(Sketcher.Constraint("Angle", 0, Q("-22.5 deg")))
sketch3.addConstraint(Sketcher.Constraint("Distance", 0, Q("0.05 in")))
sketch3.addConstraint(Sketcher.Constraint("DistanceX", -1, 1, 1, 2, Q("63.962999 mm")))
sketch3.addConstraint(Sketcher.Constraint("DistanceY", 7, 2, -1, 1, Q("63.962999 mm")))
sketch3.addConstraint(Sketcher.Constraint("DistanceX", 4, 2, 3, 2, Q("34.351298 mm")))
sketch3.addConstraint(Sketcher.Constraint("DistanceY", 5, 2, 0, 2, Q("34.351298 mm")))
sketch3.addConstraint(Sketcher.Constraint("DistanceY", -1, 1, 28, 2, Q("30.465791 mm")))
sketch3.addConstraint(Sketcher.Constraint("DistanceX", -1, 1, 29, 2, Q("75.89758 mm")))
sketch3.addConstraint(Sketcher.Constraint("DistanceY", 37, 2, -1, 1, Q("75.696269 mm")))
sketch3.addConstraint(Sketcher.Constraint("DistanceX", -1, 1, 38, 2, Q("30.465791 mm")))
pocket2 = body.newObject("PartDesign::Pocket", "Pocket001")
pocket2.Profile = sketch3
pocket2.Type = "ThroughAll"

doc.recompute()
